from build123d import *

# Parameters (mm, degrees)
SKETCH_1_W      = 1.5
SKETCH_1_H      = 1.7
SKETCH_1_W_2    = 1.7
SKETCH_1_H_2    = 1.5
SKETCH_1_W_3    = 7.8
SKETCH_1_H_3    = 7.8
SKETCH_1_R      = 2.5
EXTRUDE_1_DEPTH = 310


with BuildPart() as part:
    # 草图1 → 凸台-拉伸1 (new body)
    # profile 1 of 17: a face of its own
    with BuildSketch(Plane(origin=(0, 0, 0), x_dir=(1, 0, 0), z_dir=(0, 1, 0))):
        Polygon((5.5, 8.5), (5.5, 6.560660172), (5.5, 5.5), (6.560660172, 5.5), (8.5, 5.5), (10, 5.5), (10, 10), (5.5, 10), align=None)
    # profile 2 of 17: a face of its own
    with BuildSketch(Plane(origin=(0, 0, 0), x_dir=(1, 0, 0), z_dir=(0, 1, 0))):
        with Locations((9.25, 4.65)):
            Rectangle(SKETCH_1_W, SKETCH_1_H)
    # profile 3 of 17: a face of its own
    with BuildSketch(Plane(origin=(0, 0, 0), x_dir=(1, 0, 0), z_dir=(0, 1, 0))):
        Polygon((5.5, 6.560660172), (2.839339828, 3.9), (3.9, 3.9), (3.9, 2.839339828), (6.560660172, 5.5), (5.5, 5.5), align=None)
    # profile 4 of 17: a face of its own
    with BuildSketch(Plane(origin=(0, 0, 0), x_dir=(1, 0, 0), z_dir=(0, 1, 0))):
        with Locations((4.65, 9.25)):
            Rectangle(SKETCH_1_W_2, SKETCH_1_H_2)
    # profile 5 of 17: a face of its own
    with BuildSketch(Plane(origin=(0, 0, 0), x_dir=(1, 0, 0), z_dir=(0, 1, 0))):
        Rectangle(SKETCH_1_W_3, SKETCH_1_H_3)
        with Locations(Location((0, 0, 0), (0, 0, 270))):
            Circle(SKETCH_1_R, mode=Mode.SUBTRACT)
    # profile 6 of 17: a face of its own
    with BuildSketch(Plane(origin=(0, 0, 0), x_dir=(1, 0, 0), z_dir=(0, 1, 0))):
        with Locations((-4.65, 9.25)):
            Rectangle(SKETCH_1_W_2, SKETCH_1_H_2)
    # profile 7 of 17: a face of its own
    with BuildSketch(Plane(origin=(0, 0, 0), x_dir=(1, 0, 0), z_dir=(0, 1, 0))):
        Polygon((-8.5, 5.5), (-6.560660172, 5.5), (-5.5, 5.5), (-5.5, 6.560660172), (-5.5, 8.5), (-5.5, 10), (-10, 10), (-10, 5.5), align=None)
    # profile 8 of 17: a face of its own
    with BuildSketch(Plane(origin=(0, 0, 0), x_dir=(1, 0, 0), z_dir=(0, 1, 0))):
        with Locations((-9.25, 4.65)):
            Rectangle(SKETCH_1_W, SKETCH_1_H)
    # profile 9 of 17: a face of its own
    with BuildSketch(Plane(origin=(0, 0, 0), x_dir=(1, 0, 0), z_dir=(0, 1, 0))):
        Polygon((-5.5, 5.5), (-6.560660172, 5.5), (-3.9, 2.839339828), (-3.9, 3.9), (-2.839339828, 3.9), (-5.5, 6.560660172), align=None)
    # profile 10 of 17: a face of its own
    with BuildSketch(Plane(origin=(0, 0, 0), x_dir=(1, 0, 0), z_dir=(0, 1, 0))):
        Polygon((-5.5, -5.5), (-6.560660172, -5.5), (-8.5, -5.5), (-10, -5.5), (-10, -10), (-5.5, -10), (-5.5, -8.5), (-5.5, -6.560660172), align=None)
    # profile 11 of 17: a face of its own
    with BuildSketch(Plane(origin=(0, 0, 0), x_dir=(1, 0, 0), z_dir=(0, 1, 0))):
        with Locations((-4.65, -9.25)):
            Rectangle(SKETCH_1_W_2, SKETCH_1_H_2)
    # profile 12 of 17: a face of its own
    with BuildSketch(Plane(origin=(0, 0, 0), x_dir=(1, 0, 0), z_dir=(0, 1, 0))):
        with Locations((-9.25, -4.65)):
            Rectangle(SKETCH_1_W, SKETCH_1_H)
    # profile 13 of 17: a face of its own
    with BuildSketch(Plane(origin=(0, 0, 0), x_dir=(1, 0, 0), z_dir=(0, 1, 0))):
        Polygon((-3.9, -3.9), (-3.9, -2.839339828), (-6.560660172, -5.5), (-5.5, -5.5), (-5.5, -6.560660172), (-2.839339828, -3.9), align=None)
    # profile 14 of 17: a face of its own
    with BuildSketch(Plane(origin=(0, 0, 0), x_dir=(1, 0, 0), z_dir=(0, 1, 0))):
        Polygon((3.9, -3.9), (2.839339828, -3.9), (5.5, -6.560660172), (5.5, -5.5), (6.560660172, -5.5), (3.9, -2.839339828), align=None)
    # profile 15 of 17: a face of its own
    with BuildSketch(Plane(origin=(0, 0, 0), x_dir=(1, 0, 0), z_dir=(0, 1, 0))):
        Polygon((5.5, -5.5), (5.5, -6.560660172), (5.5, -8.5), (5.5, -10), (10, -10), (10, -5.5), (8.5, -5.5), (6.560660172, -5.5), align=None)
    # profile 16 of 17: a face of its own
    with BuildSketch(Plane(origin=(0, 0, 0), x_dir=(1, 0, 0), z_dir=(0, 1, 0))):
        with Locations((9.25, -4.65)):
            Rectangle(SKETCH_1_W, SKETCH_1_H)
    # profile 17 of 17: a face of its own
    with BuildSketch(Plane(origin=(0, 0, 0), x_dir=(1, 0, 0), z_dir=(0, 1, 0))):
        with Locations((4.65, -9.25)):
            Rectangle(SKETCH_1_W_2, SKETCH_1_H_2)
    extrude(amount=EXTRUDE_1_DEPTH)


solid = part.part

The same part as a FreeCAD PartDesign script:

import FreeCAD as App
import Part
import Sketcher
Q = App.Units.Quantity

doc = App.newDocument("Part")
body = doc.addObject("PartDesign::Body", "Body")

# Sketch on XZ plane
sketch1 = body.newObject("Sketcher::SketchObject", "Sketch")
sketch1.AttachmentSupport = (doc.getObject("XZ_Plane"), [""])
sketch1.MapMode = "FlatFace"
sketch1.addGeometry(Part.LineSegment(App.Vector(6.6, -5.5, 0), App.Vector(8.5, -5.5, 0)), False)
sketch1.addGeometry(Part.LineSegment(App.Vector(8.5, -5.5, 0), App.Vector(8.5, -3.8, 0)), False)
sketch1.addGeometry(Part.LineSegment(App.Vector(8.5, -3.8, 0), App.Vector(10, -3.8, 0)), False)
sketch1.addGeometry(Part.LineSegment(App.Vector(10, -3.8, 0), App.Vector(10, -10, 0)), False)
sketch1.addGeometry(Part.LineSegment(App.Vector(10, -10, 0), App.Vector(3.8, -10, 0)), False)
sketch1.addGeometry(Part.LineSegment(App.Vector(3.8, -10, 0), App.Vector(3.8, -8.5, 0)), False)
sketch1.addGeometry(Part.LineSegment(App.Vector(3.8, -8.5, 0), App.Vector(5.5, -8.5, 0)), False)
sketch1.addGeometry(Part.LineSegment(App.Vector(5.5, -8.5, 0), App.Vector(5.5, -6.6, 0)), False)
sketch1.addGeometry(Part.LineSegment(App.Vector(5.5, -6.6, 0), App.Vector(2.8, -3.9, 0)), False)
sketch1.addGeometry(Part.LineSegment(App.Vector(2.8, -3.9, 0), App.Vector(-2.8, -3.9, 0)), False)
sketch1.addGeometry(Part.LineSegment(App.Vector(-2.8, -3.9, 0), App.Vector(-5.5, -6.6, 0)), False)
sketch1.addGeometry(Part.LineSegment(App.Vector(-5.5, -6.6, 0), App.Vector(-5.5, -8.5, 0)), False)
sketch1.addGeometry(Part.LineSegment(App.Vector(-5.5, -8.5, 0), App.Vector(-3.8, -8.5, 0)), False)
sketch1.addGeometry(Part.LineSegment(App.Vector(-3.8, -8.5, 0), App.Vector(-3.8, -10, 0)), False)
sketch1.addGeometry(Part.LineSegment(App.Vector(-3.8, -10, 0), App.Vector(-10, -10, 0)), False)
sketch1.addGeometry(Part.LineSegment(App.Vector(-10, -10, 0), App.Vector(-10, -3.8, 0)), False)
sketch1.addGeometry(Part.LineSegment(App.Vector(-10, -3.8, 0), App.Vector(-8.5, -3.8, 0)), False)
sketch1.addGeometry(Part.LineSegment(App.Vector(-8.5, -3.8, 0), App.Vector(-8.5, -5.5, 0)), False)
sketch1.addGeometry(Part.LineSegment(App.Vector(-8.5, -5.5, 0), App.Vector(-6.6, -5.5, 0)), False)
sketch1.addGeometry(Part.LineSegment(App.Vector(-6.6, -5.5, 0), App.Vector(-3.9, -2.8, 0)), False)
sketch1.addGeometry(Part.LineSegment(App.Vector(-3.9, -2.8, 0), App.Vector(-3.9, 2.8, 0)), False)
sketch1.addGeometry(Part.LineSegment(App.Vector(-3.9, 2.8, 0), App.Vector(-6.6, 5.5, 0)), False)
sketch1.addGeometry(Part.LineSegment(App.Vector(-6.6, 5.5, 0), App.Vector(-8.5, 5.5, 0)), False)
sketch1.addGeometry(Part.LineSegment(App.Vector(-8.5, 5.5, 0), App.Vector(-8.5, 3.8, 0)), False)
sketch1.addGeometry(Part.LineSegment(App.Vector(-8.5, 3.8, 0), App.Vector(-10, 3.8, 0)), False)
sketch1.addGeometry(Part.LineSegment(App.Vector(-10, 3.8, 0), App.Vector(-10, 10, 0)), False)
sketch1.addGeometry(Part.LineSegment(App.Vector(-10, 10, 0), App.Vector(-3.8, 10, 0)), False)
sketch1.addGeometry(Part.LineSegment(App.Vector(-3.8, 10, 0), App.Vector(-3.8, 8.5, 0)), False)
sketch1.addGeometry(Part.LineSegment(App.Vector(-3.8, 8.5, 0), App.Vector(-5.5, 8.5, 0)), False)
sketch1.addGeometry(Part.LineSegment(App.Vector(-5.5, 8.5, 0), App.Vector(-5.5, 6.6, 0)), False)
sketch1.addGeometry(Part.LineSegment(App.Vector(-5.5, 6.6, 0), App.Vector(-2.8, 3.9, 0)), False)
sketch1.addGeometry(Part.LineSegment(App.Vector(-2.8, 3.9, 0), App.Vector(2.8, 3.9, 0)), False)
sketch1.addGeometry(Part.LineSegment(App.Vector(2.8, 3.9, 0), App.Vector(5.5, 6.6, 0)), False)
sketch1.addGeometry(Part.LineSegment(App.Vector(5.5, 6.6, 0), App.Vector(5.5, 8.5, 0)), False)
sketch1.addGeometry(Part.LineSegment(App.Vector(5.5, 8.5, 0), App.Vector(3.8, 8.5, 0)), False)
sketch1.addGeometry(Part.LineSegment(App.Vector(3.8, 8.5, 0), App.Vector(3.8, 10, 0)), False)
sketch1.addGeometry(Part.LineSegment(App.Vector(3.8, 10, 0), App.Vector(10, 10, 0)), False)
sketch1.addGeometry(Part.LineSegment(App.Vector(10, 10, 0), App.Vector(10, 3.8, 0)), False)
sketch1.addGeometry(Part.LineSegment(App.Vector(10, 3.8, 0), App.Vector(8.5, 3.8, 0)), False)
sketch1.addGeometry(Part.LineSegment(App.Vector(8.5, 3.8, 0), App.Vector(8.5, 5.5, 0)), False)
sketch1.addGeometry(Part.LineSegment(App.Vector(8.5, 5.5, 0), App.Vector(6.6, 5.5, 0)), False)
sketch1.addGeometry(Part.LineSegment(App.Vector(6.6, 5.5, 0), App.Vector(3.9, 2.8, 0)), False)
sketch1.addGeometry(Part.LineSegment(App.Vector(3.9, 2.8, 0), App.Vector(3.9, -2.8, 0)), False)
sketch1.addGeometry(Part.LineSegment(App.Vector(3.9, -2.8, 0), App.Vector(6.6, -5.5, 0)), False)
sketch1.addGeometry(Part.Circle(App.Vector(0, 0, 0), App.Vector(0, 0, 1), 2.5), False)
sketch1.addConstraint(Sketcher.Constraint("Coincident", 0, 2, 1, 1))
sketch1.addConstraint(Sketcher.Constraint("Coincident", 1, 2, 2, 1))
sketch1.addConstraint(Sketcher.Constraint("Coincident", 2, 2, 3, 1))
sketch1.addConstraint(Sketcher.Constraint("Coincident", 3, 2, 4, 1))
sketch1.addConstraint(Sketcher.Constraint("Coincident", 4, 2, 5, 1))
sketch1.addConstraint(Sketcher.Constraint("Coincident", 5, 2, 6, 1))
sketch1.addConstraint(Sketcher.Constraint("Coincident", 6, 2, 7, 1))
sketch1.addConstraint(Sketcher.Constraint("Coincident", 7, 2, 8, 1))
sketch1.addConstraint(Sketcher.Constraint("Coincident", 8, 2, 9, 1))
sketch1.addConstraint(Sketcher.Constraint("Coincident", 9, 2, 10, 1))
sketch1.addConstraint(Sketcher.Constraint("Coincident", 10, 2, 11, 1))
sketch1.addConstraint(Sketcher.Constraint("Coincident", 11, 2, 12, 1))
sketch1.addConstraint(Sketcher.Constraint("Coincident", 12, 2, 13, 1))
sketch1.addConstraint(Sketcher.Constraint("Coincident", 13, 2, 14, 1))
sketch1.addConstraint(Sketcher.Constraint("Coincident", 14, 2, 15, 1))
sketch1.addConstraint(Sketcher.Constraint("Coincident", 15, 2, 16, 1))
sketch1.addConstraint(Sketcher.Constraint("Coincident", 16, 2, 17, 1))
sketch1.addConstraint(Sketcher.Constraint("Coincident", 17, 2, 18, 1))
sketch1.addConstraint(Sketcher.Constraint("Coincident", 18, 2, 19, 1))
sketch1.addConstraint(Sketcher.Constraint("Coincident", 19, 2, 20, 1))
sketch1.addConstraint(Sketcher.Constraint("Coincident", 20, 2, 21, 1))
sketch1.addConstraint(Sketcher.Constraint("Coincident", 21, 2, 22, 1))
sketch1.addConstraint(Sketcher.Constraint("Coincident", 22, 2, 23, 1))
sketch1.addConstraint(Sketcher.Constraint("Coincident", 23, 2, 24, 1))
sketch1.addConstraint(Sketcher.Constraint("Coincident", 24, 2, 25, 1))
sketch1.addConstraint(Sketcher.Constraint("Coincident", 25, 2, 26, 1))
sketch1.addConstraint(Sketcher.Constraint("Coincident", 26, 2, 27, 1))
sketch1.addConstraint(Sketcher.Constraint("Coincident", 27, 2, 28, 1))
sketch1.addConstraint(Sketcher.Constraint("Coincident", 28, 2, 29, 1))
sketch1.addConstraint(Sketcher.Constraint("Coincident", 29, 2, 30, 1))
sketch1.addConstraint(Sketcher.Constraint("Coincident", 30, 2, 31, 1))
sketch1.addConstraint(Sketcher.Constraint("Coincident", 31, 2, 32, 1))
sketch1.addConstraint(Sketcher.Constraint("Coincident", 32, 2, 33, 1))
sketch1.addConstraint(Sketcher.Constraint("Coincident", 33, 2, 34, 1))
sketch1.addConstraint(Sketcher.Constraint("Coincident", 34, 2, 35, 1))
sketch1.addConstraint(Sketcher.Constraint("Coincident", 35, 2, 36, 1))
sketch1.addConstraint(Sketcher.Constraint("Coincident", 36, 2, 37, 1))
sketch1.addConstraint(Sketcher.Constraint("Coincident", 37, 2, 38, 1))
sketch1.addConstraint(Sketcher.Constraint("Coincident", 38, 2, 39, 1))
sketch1.addConstraint(Sketcher.Constraint("Coincident", 39, 2, 40, 1))
sketch1.addConstraint(Sketcher.Constraint("Coincident", 40, 2, 41, 1))
sketch1.addConstraint(Sketcher.Constraint("Coincident", 41, 2, 42, 1))
sketch1.addConstraint(Sketcher.Constraint("Coincident", 42, 2, 43, 1))
sketch1.addConstraint(Sketcher.Constraint("Coincident", 43, 2, 0, 1))
sketch1.addConstraint(Sketcher.Constraint("Horizontal", 0))
sketch1.addConstraint(Sketcher.Constraint("Vertical", 1))
sketch1.addConstraint(Sketcher.Constraint("Horizontal", 2))
sketch1.addConstraint(Sketcher.Constraint("Vertical", 3))
sketch1.addConstraint(Sketcher.Constraint("Horizontal", 4))
sketch1.addConstraint(Sketcher.Constraint("Vertical", 5))
sketch1.addConstraint(Sketcher.Constraint("Horizontal", 6))
sketch1.addConstraint(Sketcher.Constraint("Vertical", 7))
sketch1.addConstraint(Sketcher.Constraint("Horizontal", 9))
sketch1.addConstraint(Sketcher.Constraint("Vertical", 11))
sketch1.addConstraint(Sketcher.Constraint("Horizontal", 12))
sketch1.addConstraint(Sketcher.Constraint("Vertical", 13))
sketch1.addConstraint(Sketcher.Constraint("Horizontal", 14))
sketch1.addConstraint(Sketcher.Constraint("Vertical", 15))
sketch1.addConstraint(Sketcher.Constraint("Horizontal", 16))
sketch1.addConstraint(Sketcher.Constraint("Vertical", 17))
sketch1.addConstraint(Sketcher.Constraint("Horizontal", 18))
sketch1.addConstraint(Sketcher.Constraint("Vertical", 20))
sketch1.addConstraint(Sketcher.Constraint("Horizontal", 22))
sketch1.addConstraint(Sketcher.Constraint("Vertical", 23))
sketch1.addConstraint(Sketcher.Constraint("Horizontal", 24))
sketch1.addConstraint(Sketcher.Constraint("Vertical", 25))
sketch1.addConstraint(Sketcher.Constraint("Horizontal", 26))
sketch1.addConstraint(Sketcher.Constraint("Vertical", 27))
sketch1.addConstraint(Sketcher.Constraint("Horizontal", 28))
sketch1.addConstraint(Sketcher.Constraint("Vertical", 29))
sketch1.addConstraint(Sketcher.Constraint("Horizontal", 31))
sketch1.addConstraint(Sketcher.Constraint("Vertical", 33))
sketch1.addConstraint(Sketcher.Constraint("Horizontal", 34))
sketch1.addConstraint(Sketcher.Constraint("Vertical", 35))
sketch1.addConstraint(Sketcher.Constraint("Horizontal", 36))
sketch1.addConstraint(Sketcher.Constraint("Vertical", 37))
sketch1.addConstraint(Sketcher.Constraint("Horizontal", 38))
sketch1.addConstraint(Sketcher.Constraint("Vertical", 39))
sketch1.addConstraint(Sketcher.Constraint("Horizontal", 40))
sketch1.addConstraint(Sketcher.Constraint("Vertical", 42))
sketch1.addConstraint(Sketcher.Constraint("Coincident", 44, 3, -1, 1))
sketch1.addConstraint(Sketcher.Constraint("Symmetric", 0, 2, 22, 2, -1, 1))
sketch1.addConstraint(Sketcher.Constraint("Symmetric", 2, 2, 24, 2, -1, 1))
sketch1.addConstraint(Sketcher.Constraint("Symmetric", 4, 2, 26, 2, -1, 1))
sketch1.addConstraint(Sketcher.Constraint("Symmetric", 6, 2, 28, 2, -1, 1))
sketch1.addConstraint(Sketcher.Constraint("Symmetric", 8, 2, 30, 2, -1, 1))
sketch1.addConstraint(Sketcher.Constraint("Symmetric", 10, 2, 32, 2, -1, 1))
sketch1.addConstraint(Sketcher.Constraint("Symmetric", 12, 2, 34, 2, -1, 1))
sketch1.addConstraint(Sketcher.Constraint("Symmetric", 14, 2, 36, 2, -1, 1))
sketch1.addConstraint(Sketcher.Constraint("Symmetric", 16, 2, 38, 2, -1, 1))
sketch1.addConstraint(Sketcher.Constraint("Symmetric", 18, 2, 40, 2, -1, 1))
sketch1.addConstraint(Sketcher.Constraint("Symmetric", 19, 2, 41, 2, -1, 1))
sketch1.addConstraint(Sketcher.Constraint("Symmetric", 7, 2, 10, 2, -2))
sketch1.addConstraint(Sketcher.Constraint("Symmetric", 5, 2, 12, 2, -2))
sketch1.addConstraint(Sketcher.Constraint("Symmetric", 3, 2, 14, 2, -2))
sketch1.addConstraint(Sketcher.Constraint("Symmetric", 1, 2, 16, 2, -2))
sketch1.addConstraint(Sketcher.Constraint("Symmetric", 21, 2, 40, 2, -2))
sketch1.addConstraint(Sketcher.Constraint("Perpendicular", 8, 10))
sketch1.addConstraint(Sketcher.Constraint("Parallel", 10, 19))
sketch1.addConstraint(Sketcher.Constraint("Perpendicular", 19, 21))
sketch1.addConstraint(Sketcher.Constraint("Parallel", 21, 30))
sketch1.addConstraint(Sketcher.Constraint("Perpendicular", 30, 32))
sketch1.addConstraint(Sketcher.Constraint("Perpendicular", 41, 43))
sketch1.addConstraint(Sketcher.Constraint("Horizontal", 20, 2, 41, 2))
sketch1.addConstraint(Sketcher.Constraint("Horizontal", 19, 2, 42, 2))
sketch1.addConstraint(Sketcher.Constraint("Equal", 34, 1))
sketch1.addConstraint(Sketcher.Constraint("Equal", 36, 3))
sketch1.addConstraint(Sketcher.Constraint("Equal", 38, 5))
sketch1.addConstraint(Sketcher.Constraint("Equal", 40, 7))
sketch1.addConstraint(Sketcher.Constraint("Equal", 31, 20))
sketch1.addConstraint(Sketcher.Constraint("Equal", 10, 19))
sketch1.addConstraint(Sketcher.Constraint("Diameter", 44, Q("5 mm")))
sketch1.addConstraint(Sketcher.Constraint("DistanceX", 2, 1, 2, 2, Q("1.5 mm")))
sketch1.addConstraint(Sketcher.Constraint("DistanceX", 4, 2, 4, 1, Q("6.2 mm")))
sketch1.addConstraint(Sketcher.Constraint("DistanceX", 6, 1, 6, 2, Q("1.7 mm")))
sketch1.addConstraint(Sketcher.Constraint("DistanceX", -1, 1, 2, 2, Q("10 mm")))
sketch1.addConstraint(Sketcher.Constraint("DistanceY", 8, 2, -1, 1, Q("3.9 mm")))
sketch1.addConstraint(Sketcher.Constraint("DistanceX", 0, 1, 0, 2, Q("1.93934 mm")))
pad1 = body.newObject("PartDesign::Pad", "Pad")
pad1.Profile = sketch1
pad1.Length = 310
pad1.Reversed = True

doc.recompute()
